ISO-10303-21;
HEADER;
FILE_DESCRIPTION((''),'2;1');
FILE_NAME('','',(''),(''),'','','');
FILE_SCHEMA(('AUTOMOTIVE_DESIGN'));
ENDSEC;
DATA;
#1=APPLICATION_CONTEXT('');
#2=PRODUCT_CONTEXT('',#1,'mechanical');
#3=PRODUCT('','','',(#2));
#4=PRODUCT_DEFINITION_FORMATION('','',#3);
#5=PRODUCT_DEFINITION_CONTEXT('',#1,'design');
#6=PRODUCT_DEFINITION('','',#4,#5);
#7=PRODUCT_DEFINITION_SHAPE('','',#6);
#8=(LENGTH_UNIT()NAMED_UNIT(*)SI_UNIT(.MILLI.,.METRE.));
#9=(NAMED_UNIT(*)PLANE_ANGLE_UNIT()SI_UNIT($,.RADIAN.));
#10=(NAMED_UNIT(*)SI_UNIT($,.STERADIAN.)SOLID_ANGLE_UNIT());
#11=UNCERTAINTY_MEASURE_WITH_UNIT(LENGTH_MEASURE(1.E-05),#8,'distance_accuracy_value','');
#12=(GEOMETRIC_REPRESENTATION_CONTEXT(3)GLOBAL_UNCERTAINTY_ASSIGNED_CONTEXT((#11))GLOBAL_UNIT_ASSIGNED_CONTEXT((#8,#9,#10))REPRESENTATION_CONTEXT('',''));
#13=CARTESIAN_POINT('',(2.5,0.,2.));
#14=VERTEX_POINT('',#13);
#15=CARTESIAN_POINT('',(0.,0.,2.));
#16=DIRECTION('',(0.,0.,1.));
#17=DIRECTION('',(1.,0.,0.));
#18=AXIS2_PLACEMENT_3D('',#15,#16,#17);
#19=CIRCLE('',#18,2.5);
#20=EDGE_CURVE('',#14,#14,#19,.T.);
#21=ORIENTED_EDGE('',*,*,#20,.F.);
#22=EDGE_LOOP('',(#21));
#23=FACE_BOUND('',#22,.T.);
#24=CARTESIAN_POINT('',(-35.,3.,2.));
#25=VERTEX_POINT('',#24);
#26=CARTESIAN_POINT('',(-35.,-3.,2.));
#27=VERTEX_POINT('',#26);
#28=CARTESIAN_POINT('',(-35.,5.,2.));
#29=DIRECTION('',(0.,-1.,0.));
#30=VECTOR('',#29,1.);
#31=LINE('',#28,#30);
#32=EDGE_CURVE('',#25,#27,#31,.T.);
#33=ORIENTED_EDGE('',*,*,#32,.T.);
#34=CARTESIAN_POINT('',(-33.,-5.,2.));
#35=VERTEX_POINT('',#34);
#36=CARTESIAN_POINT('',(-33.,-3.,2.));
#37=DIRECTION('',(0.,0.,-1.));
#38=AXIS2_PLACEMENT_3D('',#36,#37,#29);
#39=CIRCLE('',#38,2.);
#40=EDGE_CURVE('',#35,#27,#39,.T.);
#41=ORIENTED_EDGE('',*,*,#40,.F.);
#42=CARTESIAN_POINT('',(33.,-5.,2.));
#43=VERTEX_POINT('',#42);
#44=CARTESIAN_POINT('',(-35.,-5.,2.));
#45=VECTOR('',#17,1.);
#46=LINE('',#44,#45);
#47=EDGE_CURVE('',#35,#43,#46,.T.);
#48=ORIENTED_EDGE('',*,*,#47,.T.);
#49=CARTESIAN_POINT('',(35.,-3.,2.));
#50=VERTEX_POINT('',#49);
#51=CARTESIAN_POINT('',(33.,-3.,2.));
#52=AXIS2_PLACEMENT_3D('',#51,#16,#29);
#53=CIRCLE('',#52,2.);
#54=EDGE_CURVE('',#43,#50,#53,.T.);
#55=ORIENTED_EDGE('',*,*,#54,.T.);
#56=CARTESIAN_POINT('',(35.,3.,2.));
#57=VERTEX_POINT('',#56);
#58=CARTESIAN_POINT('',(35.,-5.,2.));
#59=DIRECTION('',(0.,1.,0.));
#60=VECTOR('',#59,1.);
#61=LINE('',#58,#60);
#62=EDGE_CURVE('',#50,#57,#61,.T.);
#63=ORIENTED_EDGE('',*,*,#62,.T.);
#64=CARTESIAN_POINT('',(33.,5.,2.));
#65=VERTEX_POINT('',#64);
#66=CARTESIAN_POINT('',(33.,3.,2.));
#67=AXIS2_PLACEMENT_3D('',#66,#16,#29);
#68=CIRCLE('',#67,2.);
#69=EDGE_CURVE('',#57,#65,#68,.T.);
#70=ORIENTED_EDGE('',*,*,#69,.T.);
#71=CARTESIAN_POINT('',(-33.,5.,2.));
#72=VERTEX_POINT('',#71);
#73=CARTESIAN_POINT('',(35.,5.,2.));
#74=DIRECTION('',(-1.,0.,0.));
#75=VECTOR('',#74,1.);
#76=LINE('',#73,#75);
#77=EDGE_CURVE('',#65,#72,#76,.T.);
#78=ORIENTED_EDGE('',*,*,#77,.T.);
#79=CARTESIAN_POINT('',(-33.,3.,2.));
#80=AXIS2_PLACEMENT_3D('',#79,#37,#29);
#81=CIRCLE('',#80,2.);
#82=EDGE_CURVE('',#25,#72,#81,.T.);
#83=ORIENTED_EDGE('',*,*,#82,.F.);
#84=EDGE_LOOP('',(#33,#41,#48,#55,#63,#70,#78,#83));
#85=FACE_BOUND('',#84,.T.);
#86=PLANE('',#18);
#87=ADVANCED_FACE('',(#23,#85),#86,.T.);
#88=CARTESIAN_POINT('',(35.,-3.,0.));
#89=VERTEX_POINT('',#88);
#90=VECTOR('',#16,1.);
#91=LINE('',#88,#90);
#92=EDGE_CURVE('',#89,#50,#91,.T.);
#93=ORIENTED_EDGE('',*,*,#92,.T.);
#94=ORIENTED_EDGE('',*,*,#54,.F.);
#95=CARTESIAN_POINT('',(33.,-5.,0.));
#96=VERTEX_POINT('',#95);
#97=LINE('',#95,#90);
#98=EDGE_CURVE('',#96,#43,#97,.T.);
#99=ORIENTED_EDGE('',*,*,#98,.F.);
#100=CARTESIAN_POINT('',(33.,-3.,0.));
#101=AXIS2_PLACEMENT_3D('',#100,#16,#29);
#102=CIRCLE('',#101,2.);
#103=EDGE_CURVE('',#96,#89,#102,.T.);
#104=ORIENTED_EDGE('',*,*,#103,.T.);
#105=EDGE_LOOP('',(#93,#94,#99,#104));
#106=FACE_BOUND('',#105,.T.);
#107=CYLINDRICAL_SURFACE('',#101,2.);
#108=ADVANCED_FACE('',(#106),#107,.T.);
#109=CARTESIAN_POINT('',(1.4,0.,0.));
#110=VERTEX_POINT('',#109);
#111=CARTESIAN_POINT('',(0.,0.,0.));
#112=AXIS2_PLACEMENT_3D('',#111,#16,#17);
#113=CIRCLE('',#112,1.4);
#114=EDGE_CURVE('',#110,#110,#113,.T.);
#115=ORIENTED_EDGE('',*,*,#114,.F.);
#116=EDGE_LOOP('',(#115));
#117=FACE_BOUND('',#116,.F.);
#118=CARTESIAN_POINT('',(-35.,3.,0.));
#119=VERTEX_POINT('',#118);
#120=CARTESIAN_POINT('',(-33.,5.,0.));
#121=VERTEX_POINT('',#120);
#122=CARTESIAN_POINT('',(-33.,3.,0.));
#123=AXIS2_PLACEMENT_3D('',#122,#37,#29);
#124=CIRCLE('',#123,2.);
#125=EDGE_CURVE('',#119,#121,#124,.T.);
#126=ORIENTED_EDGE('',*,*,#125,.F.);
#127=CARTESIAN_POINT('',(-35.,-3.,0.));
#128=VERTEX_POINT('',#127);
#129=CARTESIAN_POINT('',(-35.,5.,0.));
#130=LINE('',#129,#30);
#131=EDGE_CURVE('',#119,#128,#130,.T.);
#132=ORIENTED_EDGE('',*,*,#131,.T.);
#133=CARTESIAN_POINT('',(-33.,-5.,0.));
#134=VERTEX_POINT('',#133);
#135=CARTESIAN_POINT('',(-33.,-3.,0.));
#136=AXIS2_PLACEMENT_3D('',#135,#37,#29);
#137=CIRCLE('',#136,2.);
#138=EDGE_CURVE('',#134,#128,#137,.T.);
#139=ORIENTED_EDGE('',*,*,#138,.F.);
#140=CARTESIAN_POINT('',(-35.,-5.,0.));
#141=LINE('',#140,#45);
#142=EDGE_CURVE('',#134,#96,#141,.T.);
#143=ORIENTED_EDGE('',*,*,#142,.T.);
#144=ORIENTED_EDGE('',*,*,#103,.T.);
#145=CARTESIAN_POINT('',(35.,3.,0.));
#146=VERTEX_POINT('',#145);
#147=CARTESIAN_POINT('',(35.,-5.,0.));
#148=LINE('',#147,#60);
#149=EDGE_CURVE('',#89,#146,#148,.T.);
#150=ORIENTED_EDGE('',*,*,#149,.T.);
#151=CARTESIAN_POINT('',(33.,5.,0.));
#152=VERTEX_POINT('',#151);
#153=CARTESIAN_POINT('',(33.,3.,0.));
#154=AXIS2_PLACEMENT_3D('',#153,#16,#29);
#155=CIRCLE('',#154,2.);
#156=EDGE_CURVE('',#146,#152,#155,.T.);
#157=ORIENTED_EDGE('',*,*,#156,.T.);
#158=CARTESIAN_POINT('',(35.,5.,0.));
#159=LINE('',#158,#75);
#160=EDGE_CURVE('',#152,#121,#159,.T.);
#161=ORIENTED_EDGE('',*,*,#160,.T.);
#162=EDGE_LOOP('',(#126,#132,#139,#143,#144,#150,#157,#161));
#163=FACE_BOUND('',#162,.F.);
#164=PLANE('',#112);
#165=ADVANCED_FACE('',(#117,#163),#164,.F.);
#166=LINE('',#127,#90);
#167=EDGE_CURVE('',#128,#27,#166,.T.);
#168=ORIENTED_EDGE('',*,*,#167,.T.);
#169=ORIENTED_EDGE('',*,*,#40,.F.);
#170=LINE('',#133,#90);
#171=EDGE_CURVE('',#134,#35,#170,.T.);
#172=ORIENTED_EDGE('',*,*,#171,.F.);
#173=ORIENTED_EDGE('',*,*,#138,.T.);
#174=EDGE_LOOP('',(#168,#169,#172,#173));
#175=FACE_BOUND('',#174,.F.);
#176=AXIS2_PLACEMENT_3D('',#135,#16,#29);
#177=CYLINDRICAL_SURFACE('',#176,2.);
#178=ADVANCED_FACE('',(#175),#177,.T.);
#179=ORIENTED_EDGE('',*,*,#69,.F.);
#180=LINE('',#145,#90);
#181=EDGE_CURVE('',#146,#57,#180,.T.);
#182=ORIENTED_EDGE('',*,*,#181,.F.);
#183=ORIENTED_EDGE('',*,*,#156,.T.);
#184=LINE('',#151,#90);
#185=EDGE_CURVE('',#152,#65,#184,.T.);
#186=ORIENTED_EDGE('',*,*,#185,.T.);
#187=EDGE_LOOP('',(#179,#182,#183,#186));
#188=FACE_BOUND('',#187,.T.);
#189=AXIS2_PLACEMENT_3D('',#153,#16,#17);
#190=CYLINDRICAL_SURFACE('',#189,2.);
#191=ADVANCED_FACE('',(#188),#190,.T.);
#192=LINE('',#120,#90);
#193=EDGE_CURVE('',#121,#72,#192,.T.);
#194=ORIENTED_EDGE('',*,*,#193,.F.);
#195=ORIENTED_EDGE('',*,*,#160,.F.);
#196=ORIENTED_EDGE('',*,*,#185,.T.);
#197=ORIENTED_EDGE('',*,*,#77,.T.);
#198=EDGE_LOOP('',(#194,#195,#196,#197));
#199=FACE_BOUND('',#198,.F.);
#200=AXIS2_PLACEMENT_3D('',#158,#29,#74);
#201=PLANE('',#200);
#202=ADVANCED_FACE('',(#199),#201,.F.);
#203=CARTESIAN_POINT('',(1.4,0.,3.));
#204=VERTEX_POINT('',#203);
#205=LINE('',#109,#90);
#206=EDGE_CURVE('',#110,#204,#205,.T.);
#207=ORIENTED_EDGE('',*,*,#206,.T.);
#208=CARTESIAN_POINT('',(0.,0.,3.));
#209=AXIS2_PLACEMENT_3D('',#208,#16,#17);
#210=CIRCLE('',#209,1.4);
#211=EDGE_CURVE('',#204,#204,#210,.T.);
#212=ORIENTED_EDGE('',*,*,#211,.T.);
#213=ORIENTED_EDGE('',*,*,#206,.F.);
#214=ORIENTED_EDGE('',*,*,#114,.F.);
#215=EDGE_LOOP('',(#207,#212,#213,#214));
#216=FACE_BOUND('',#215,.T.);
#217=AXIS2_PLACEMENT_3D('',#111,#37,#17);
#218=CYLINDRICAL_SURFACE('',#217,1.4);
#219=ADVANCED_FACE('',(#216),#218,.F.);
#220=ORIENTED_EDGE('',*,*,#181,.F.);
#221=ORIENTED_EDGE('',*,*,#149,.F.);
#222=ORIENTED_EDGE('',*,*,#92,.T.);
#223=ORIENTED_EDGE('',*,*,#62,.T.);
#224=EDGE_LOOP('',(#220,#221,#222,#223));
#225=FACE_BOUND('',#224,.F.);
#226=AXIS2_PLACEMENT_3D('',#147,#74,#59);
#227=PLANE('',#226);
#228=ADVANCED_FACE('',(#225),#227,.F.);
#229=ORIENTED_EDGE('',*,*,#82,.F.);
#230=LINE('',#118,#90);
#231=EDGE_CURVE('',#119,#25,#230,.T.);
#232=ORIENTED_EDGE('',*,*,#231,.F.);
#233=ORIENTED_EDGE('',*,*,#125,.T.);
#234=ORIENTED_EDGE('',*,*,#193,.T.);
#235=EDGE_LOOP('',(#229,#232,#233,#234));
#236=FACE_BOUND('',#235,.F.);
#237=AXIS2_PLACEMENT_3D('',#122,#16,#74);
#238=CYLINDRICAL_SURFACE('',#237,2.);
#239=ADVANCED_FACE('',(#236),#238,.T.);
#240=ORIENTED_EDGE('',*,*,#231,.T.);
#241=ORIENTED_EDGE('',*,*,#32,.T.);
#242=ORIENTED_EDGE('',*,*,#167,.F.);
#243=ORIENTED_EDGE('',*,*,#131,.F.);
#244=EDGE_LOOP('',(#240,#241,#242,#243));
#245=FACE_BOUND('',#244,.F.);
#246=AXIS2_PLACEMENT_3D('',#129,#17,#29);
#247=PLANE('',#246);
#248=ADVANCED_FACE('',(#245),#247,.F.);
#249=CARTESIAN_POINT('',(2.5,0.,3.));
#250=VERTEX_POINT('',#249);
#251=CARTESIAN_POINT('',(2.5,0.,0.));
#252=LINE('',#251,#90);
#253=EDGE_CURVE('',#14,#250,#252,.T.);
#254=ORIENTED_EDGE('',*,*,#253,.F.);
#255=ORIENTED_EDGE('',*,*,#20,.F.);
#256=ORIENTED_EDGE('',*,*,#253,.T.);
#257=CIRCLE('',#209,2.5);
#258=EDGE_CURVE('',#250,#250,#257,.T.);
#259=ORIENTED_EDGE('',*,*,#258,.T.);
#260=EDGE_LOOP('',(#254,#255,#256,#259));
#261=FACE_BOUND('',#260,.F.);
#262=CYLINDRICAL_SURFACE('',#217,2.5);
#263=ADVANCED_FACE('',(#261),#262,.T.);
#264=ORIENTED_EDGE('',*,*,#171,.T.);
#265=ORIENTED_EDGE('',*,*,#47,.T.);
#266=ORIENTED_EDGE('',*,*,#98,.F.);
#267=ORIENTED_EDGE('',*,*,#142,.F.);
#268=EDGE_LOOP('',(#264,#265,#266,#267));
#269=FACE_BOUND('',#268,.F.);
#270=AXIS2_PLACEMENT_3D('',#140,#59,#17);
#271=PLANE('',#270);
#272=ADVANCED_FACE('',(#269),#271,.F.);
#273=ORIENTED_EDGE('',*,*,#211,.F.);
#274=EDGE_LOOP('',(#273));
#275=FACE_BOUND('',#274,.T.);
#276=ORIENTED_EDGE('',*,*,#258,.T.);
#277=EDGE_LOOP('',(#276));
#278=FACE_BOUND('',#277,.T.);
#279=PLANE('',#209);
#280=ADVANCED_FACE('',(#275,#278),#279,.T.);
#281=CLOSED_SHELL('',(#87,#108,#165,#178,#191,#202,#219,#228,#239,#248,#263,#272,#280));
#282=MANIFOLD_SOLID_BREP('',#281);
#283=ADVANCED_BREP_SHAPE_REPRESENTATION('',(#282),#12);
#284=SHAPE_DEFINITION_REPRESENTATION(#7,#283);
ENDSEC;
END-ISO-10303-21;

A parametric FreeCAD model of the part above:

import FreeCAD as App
import Part
import Sketcher
Q = App.Units.Quantity


def edges_at(feature, points):
    """Names of the edges that pass closest to the given points."""
    edges = feature.Shape.Edges
    near = lambda p: min(range(len(edges)), key=lambda i: edges[i].distToShape(Part.Vertex(*p))[0])
    return sorted({f"Edge{near(p) + 1}" for p in points})


def add_polygon(sketch, points):
    """Adds a closed chain of lines whose ends are joined by coincident constraints."""
    first, n = sketch.GeometryCount, len(points)
    for a, b in zip(points, points[1:] + points[:1]):
        sketch.addGeometry(Part.LineSegment(App.Vector(*a, 0), App.Vector(*b, 0)), False)
    for i in range(n):
        sketch.addConstraint(Sketcher.Constraint("Coincident", first + i, 2, first + (i + 1) % n, 1))

doc = App.newDocument("Part")
body = doc.addObject("PartDesign::Body", "Body")

sketch1 = body.newObject("Sketcher::SketchObject", "Sketch")
sketch1.AttachmentSupport = (doc.getObject("XY_Plane"), [""])
sketch1.MapMode = "FlatFace"
add_polygon(sketch1, [(-35, -5), (35, -5), (35, 5), (-35, 5)])
sketch1.addGeometry(Part.Circle(App.Vector(0, 0, 0), App.Vector(0, 0, 1), 2.5), False)
sketch1.addConstraint(Sketcher.Constraint("Horizontal", 0))
sketch1.addConstraint(Sketcher.Constraint("Vertical", 1))
sketch1.addConstraint(Sketcher.Constraint("Horizontal", 2))
sketch1.addConstraint(Sketcher.Constraint("Vertical", 3))
sketch1.addConstraint(Sketcher.Constraint("Coincident", 4, 3, -1, 1))
sketch1.addConstraint(Sketcher.Constraint("Symmetric", 0, 2, 2, 2, -1, 1))
sketch1.addConstraint(Sketcher.Constraint("Diameter", 4, Q("5 mm")))
sketch1.addConstraint(Sketcher.Constraint("DistanceX", 0, 1, 0, 2, Q("70 mm")))
sketch1.addConstraint(Sketcher.Constraint("DistanceY", 1, 1, 1, 2, Q("10 mm")))
pad1 = body.newObject("PartDesign::Pad", "Pad")
pad1.Profile = sketch1
pad1.Length = 2
doc.recompute()

fillet = body.newObject("PartDesign::Fillet", "Fillet")
fillet.Base = (pad1, edges_at(pad1, [
    (-35, 5, 1),
    (-35, -5, 1),
    (35, -5, 1),
    (35, 5, 1),
]))
fillet.Radius = 2

sketch2 = body.newObject("Sketcher::SketchObject", "Sketch001")
sketch2.AttachmentSupport = (doc.getObject("XY_Plane"), [""])
sketch2.MapMode = "FlatFace"
sketch2.addGeometry(Part.Circle(App.Vector(0, 0, 0), App.Vector(0, 0, 1), 2.5), False)
sketch2.addGeometry(Part.Circle(App.Vector(0, 0, 0), App.Vector(0, 0, 1), 1.4), False)
sketch2.addConstraint(Sketcher.Constraint("Coincident", 0, 3, -1, 1))
sketch2.addConstraint(Sketcher.Constraint("Coincident", 1, 3, -1, 1))
sketch2.addConstraint(Sketcher.Constraint("Diameter", 0, Q("5 mm")))
sketch2.addConstraint(Sketcher.Constraint("Diameter", 1, Q("2.8 mm")))
pad2 = body.newObject("PartDesign::Pad", "Pad001")
pad2.Profile = sketch2
pad2.Length = 3

doc.recompute()
